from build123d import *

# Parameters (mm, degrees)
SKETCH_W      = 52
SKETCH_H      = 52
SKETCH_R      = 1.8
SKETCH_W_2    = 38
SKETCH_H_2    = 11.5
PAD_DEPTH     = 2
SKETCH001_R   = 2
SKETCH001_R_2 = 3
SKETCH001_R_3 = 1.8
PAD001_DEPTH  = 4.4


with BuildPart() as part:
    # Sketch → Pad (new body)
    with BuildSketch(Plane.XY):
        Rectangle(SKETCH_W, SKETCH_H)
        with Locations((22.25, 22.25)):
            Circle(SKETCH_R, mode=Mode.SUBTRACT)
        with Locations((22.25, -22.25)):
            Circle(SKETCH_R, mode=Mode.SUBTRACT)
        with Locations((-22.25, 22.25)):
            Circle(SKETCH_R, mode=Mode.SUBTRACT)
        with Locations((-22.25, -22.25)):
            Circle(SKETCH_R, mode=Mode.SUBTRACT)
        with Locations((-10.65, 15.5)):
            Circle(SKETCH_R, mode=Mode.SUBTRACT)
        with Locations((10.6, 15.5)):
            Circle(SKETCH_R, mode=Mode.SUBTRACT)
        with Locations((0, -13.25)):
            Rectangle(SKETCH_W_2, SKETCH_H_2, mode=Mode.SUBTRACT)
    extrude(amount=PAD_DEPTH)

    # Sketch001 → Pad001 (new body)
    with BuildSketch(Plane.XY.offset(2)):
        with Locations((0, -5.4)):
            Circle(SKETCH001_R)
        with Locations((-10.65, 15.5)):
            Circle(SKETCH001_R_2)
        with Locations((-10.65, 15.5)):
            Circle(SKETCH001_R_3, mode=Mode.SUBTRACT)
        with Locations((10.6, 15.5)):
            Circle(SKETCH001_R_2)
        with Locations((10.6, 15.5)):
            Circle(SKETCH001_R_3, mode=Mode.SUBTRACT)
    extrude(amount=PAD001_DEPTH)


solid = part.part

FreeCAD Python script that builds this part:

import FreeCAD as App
import Part
import Sketcher

V = App.Vector
Q = App.Units.Quantity


def add_polygon(sketch, points):
    """Adds a closed chain of lines whose ends are joined by coincident constraints."""
    first, n = sketch.GeometryCount, len(points)
    for a, b in zip(points, points[1:] + points[:1]):
        sketch.addGeometry(Part.LineSegment(App.Vector(*a, 0), App.Vector(*b, 0)), False)
    for i in range(n):
        sketch.addConstraint(Sketcher.Constraint("Coincident", first + i, 2, first + (i + 1) % n, 1))

doc = App.newDocument("Part")
body = doc.addObject("PartDesign::Body", "Body")

sketch1 = body.newObject("Sketcher::SketchObject", "Sketch")
sketch1.AttachmentSupport = (doc.getObject("XY_Plane"), [""])
sketch1.MapMode = "FlatFace"
add_polygon(sketch1, [(-26, 26), (-26, -26), (26, -26), (26, 26)])
sketch1.addGeometry(Part.Circle(V(-22.2, -22.2, 0), V(0, 0, 1), 1.8), False)
add_polygon(sketch1, [(19, -19), (-19, -19), (-19, -7.5), (19, -7.5)])
sketch1.addGeometry(Part.Circle(V(22.2, -22.2, 0), V(0, 0, 1), 1.8), False)
sketch1.addGeometry(Part.Circle(V(-22.2, 22.2, 0), V(0, 0, 1), 1.8), False)
sketch1.addGeometry(Part.Circle(V(-10.7, 15.5, 0), V(0, 0, 1), 1.8), False)
sketch1.addGeometry(Part.Circle(V(10.6, 15.5, 0), V(0, 0, 1), 1.8), False)
sketch1.addGeometry(Part.Circle(V(22.2, 22.2, 0), V(0, 0, 1), 1.8), False)
sketch1.addConstraint([
    Sketcher.Constraint("Vertical", 0),
    Sketcher.Constraint("Horizontal", 1),
    Sketcher.Constraint("Vertical", 2),
    Sketcher.Constraint("Horizontal", 3),
    Sketcher.Constraint("Horizontal", 5),
    Sketcher.Constraint("Vertical", 6),
    Sketcher.Constraint("Horizontal", 7),
    Sketcher.Constraint("Vertical", 8),
    Sketcher.Constraint("Equal", 4, 9),
    Sketcher.Constraint("Equal", 9, 10),
    Sketcher.Constraint("Equal", 10, 11),
    Sketcher.Constraint("Equal", 11, 12),
    Sketcher.Constraint("Equal", 12, 13),
    Sketcher.Constraint("Symmetric", 9, 3, 10, 3, -1, 1),
    Sketcher.Constraint("Symmetric", 4, 3, 13, 3, -1, 1),
    Sketcher.Constraint("Symmetric", 0, 2, 2, 2, -1, 1),
    Sketcher.Constraint("Symmetric", 4, 3, 9, 3, -2),
    Sketcher.Constraint("Horizontal", 11, 3, 12, 3),
    Sketcher.Constraint("Equal", 3, 0),
    Sketcher.Constraint("Diameter", 4, Q("3.6 mm")),
    Sketcher.Constraint("DistanceX", 1, 1, 1, 2, Q("52 mm")),
    Sketcher.Constraint("DistanceX", 5, 2, 5, 1, Q("38 mm")),
    Sketcher.Constraint("DistanceY", 6, 1, 6, 2, Q("11.5 mm")),
    Sketcher.Constraint("DistanceX", 5, 2, -1, 1, Q("19 mm")),
    Sketcher.Constraint("DistanceY", 5, 2, -1, 1, Q("19 mm")),
    Sketcher.Constraint("DistanceY", 6, 2, 11, 3, Q("23 mm")),
    Sketcher.Constraint("DistanceX", -1, 1, 12, 3, Q("10.6 mm")),
    Sketcher.Constraint("DistanceX", 4, 3, 9, 3, Q("44.5 mm")),
    Sketcher.Constraint("DistanceY", 4, 3, 10, 3, Q("44.5 mm")),
    Sketcher.Constraint("DistanceX", 10, 3, 11, 3, Q("11.6 mm")),
])
pad1 = body.newObject("PartDesign::Pad", "Pad")
pad1.Profile = sketch1
pad1.Length = 2

sketch2 = body.newObject("Sketcher::SketchObject", "Sketch001")
sketch2.AttachmentSupport = (doc.getObject("XY_Plane"), [""])
sketch2.MapMode = "FlatFace"
sketch2.AttachmentOffset = App.Placement(V(0, 0, 2), App.Rotation())
sketch2.addGeometry([
    Part.Circle(V(0, -5.4, 0), V(0, 0, 1), 2),
    Part.Circle(V(-10.7, 15.5, 0), V(0, 0, 1), 3),
    Part.Circle(V(-10.7, 15.5, 0), V(0, 0, 1), 1.8),
    Part.Circle(V(10.6, 15.5, 0), V(0, 0, 1), 3),
    Part.Circle(V(10.6, 15.5, 0), V(0, 0, 1), 1.8),
], False)
sketch2.addConstraint([
    Sketcher.Constraint("Coincident", 2, 3, 1, 3),
    Sketcher.Constraint("Coincident", 4, 3, 3, 3),
    Sketcher.Constraint("Equal", 1, 3),
    Sketcher.Constraint("Equal", 2, 4),
    Sketcher.Constraint("PointOnObject", 0, 3, -2),
    Sketcher.Constraint("Horizontal", 2, 3, 3, 3),
    Sketcher.Constraint("Diameter", 0, Q("4 mm")),
    Sketcher.Constraint("Diameter", 1, Q("6 mm")),
    Sketcher.Constraint("Diameter", 2, Q("3.6 mm")),
    Sketcher.Constraint("DistanceY", 0, 3, -1, 1, Q("5.4 mm")),
    Sketcher.Constraint("DistanceY", -1, 1, 1, 3, Q("15.5 mm")),
    Sketcher.Constraint("DistanceX", -1, 1, 3, 3, Q("10.6 mm")),
    Sketcher.Constraint("DistanceX", 1, 3, -1, 1, Q("10.65 mm")),
])
pad2 = body.newObject("PartDesign::Pad", "Pad001")
pad2.Profile = sketch2
pad2.Length = 4.4

doc.recompute()
